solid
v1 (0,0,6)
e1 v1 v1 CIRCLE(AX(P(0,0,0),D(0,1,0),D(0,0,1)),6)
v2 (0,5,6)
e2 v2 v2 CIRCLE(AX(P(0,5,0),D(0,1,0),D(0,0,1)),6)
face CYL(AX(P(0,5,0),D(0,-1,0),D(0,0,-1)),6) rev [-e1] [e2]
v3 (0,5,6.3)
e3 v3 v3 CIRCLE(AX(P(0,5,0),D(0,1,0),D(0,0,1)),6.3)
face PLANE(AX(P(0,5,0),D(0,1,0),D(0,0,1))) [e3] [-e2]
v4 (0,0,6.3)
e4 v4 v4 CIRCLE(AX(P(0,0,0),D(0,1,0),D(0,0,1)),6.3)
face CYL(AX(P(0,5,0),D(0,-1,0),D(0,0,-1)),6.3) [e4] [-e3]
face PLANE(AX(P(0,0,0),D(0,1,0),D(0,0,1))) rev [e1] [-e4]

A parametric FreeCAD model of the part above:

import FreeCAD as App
import Part
import Sketcher
from FreeCAD import Vector
Q = App.Units.Quantity

doc = App.newDocument("Part")
body = doc.addObject("PartDesign::Body", "Body")

# Sketch on XZ plane
sketch1 = doc.addObject("Sketcher::SketchObject", "Sketch")
body.addObject(sketch1)
sketch1.AttachmentSupport = (doc.XZ_Plane, [""])
sketch1.MapMode = "FlatFace"
sketch1.addGeometry([
    Part.Circle(Vector(0, 0, 0), Vector(0, 0, 1), 6),
    Part.Circle(Vector(0, 0, 0), Vector(0, 0, 1), 6),
], False)
sketch1.addConstraint([
    Sketcher.Constraint("Coincident", 0, 3, -1, 1),
    Sketcher.Constraint("Coincident", 1, 3, -1, 1),
    Sketcher.Constraint("Diameter", 1, Q("12 mm")),
    Sketcher.Constraint("Diameter", 0, Q("12.6 mm")),
])
pad1 = doc.addObject("PartDesign::Pad", "Pad")
body.addObject(pad1)
pad1.Profile = sketch1
pad1.Length = 5
pad1.Reversed = True

doc.recompute()
